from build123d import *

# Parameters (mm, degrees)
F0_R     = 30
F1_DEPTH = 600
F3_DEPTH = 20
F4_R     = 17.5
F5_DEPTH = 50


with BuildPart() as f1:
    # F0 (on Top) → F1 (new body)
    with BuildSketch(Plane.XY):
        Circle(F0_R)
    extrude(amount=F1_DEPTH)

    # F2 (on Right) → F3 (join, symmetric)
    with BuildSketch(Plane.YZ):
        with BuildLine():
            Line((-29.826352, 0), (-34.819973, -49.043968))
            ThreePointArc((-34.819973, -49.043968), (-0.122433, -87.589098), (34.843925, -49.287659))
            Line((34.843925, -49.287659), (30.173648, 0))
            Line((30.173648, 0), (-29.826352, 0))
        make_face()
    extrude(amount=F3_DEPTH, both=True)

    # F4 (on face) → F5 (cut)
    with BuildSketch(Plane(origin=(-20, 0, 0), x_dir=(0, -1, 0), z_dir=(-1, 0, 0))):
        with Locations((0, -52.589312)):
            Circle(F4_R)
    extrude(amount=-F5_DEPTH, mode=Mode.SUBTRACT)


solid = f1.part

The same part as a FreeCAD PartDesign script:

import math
import FreeCAD as App
import Part
import Sketcher

V = App.Vector

doc = App.newDocument("Part")
params = doc.addObject("Spreadsheet::Sheet", "Params")
for row, (alias, value) in enumerate([
    ("sketch1_diameter", "60 mm"),
    ("pad1_length", "600 mm"),
    ("sketch2_radius", "35 mm"),
    ("sketch2_width", "60 mm"),
    ("pad2_length", "40 mm"),
    ("sketch3_diameter", "35 mm"),
    ("pocket1_length", "50 mm"),
], start=1):
    params.set(f"A{row}", alias)
    params.set(f"B{row}", "=" + value)
    params.setAlias(f"B{row}", alias)

body = doc.addObject("PartDesign::Body", "Body")

# Sketch on XY plane
sketch1 = body.newObject("Sketcher::SketchObject", "Sketch")
sketch1.AttachmentSupport = (doc.getObject("XY_Plane"), [""])
sketch1.MapMode = "FlatFace"
sketch1.addGeometry(Part.Circle(V(0, 0, 0), V(0, 0, 1), 30), False)
sketch1.addConstraint([
    Sketcher.Constraint("Coincident", 0, 3, -1, 1),
    Sketcher.Constraint("Diameter", 0, 60.0),
])
sketch1.setExpression("Constraints[1]", "Params.sketch1_diameter")
pad1 = body.newObject("PartDesign::Pad", "Pad")
pad1.Profile = sketch1
pad1.setExpression("Length", "Params.pad1_length")

# Sketch on YZ plane
sketch2 = body.newObject("Sketcher::SketchObject", "Sketch001")
sketch2.AttachmentSupport = (doc.getObject("YZ_Plane"), [""])
sketch2.MapMode = "FlatFace"
sketch2.addGeometry([
    Part.LineSegment(V(-29.826352, 0, 0), V(-34.819973, -49.043968, 0)),
    Part.ArcOfCircle(Part.Circle(V(0, -52.589312, 0), V(0, 0, 1), 35), math.radians(174.186221), math.radians(365.412928)),
    Part.LineSegment(V(34.843925, -49.287659, 0), V(30.173648, 0, 0)),
    Part.LineSegment(V(30.173648, 0, 0), V(-29.826352, 0, 0)),
], False)
sketch2.addConstraint([
    Sketcher.Constraint("Tangent", 0, 2, 1, 1),
    Sketcher.Constraint("Tangent", 1, 2, 2, 1),
    Sketcher.Constraint("Coincident", 2, 2, 3, 1),
    Sketcher.Constraint("Coincident", 3, 2, 0, 1),
    Sketcher.Constraint("Horizontal", 3),
    Sketcher.Constraint("PointOnObject", 1, 3, -2),
    Sketcher.Constraint("PointOnObject", 2, 2, -1),
    Sketcher.Constraint("Radius", 1, 35.0),
    Sketcher.Constraint("DistanceX", 3, 2, 3, 1, 60.0),
    Sketcher.Constraint("Distance", 2, 49.508432),
    Sketcher.Constraint("DistanceX", -1, 1, 2, 2, 30.173648),
])
sketch2.setExpression("Constraints[7]", "Params.sketch2_radius")
sketch2.setExpression("Constraints[8]", "Params.sketch2_width")
pad2 = body.newObject("PartDesign::Pad", "Pad001")
pad2.Profile = sketch2
pad2.setExpression("Length", "Params.pad2_length")
pad2.Midplane = True

# Sketch on YZ plane
sketch3 = body.newObject("Sketcher::SketchObject", "Sketch002")
sketch3.AttachmentSupport = (doc.getObject("YZ_Plane"), [""])
sketch3.MapMode = "FlatFace"
sketch3.AttachmentOffset = App.Placement(V(0, 0, -20), App.Rotation())
sketch3.addGeometry(Part.Circle(V(0, -52.589312, 0), V(0, 0, 1), 17.5), False)
sketch3.addConstraint([
    Sketcher.Constraint("PointOnObject", 0, 3, -2),
    Sketcher.Constraint("Diameter", 0, 35.0),
    Sketcher.Constraint("DistanceY", 0, 3, -1, 1, 52.589312),
])
sketch3.setExpression("Constraints[1]", "Params.sketch3_diameter")
pocket1 = body.newObject("PartDesign::Pocket", "Pocket")
pocket1.Profile = sketch3
pocket1.setExpression("Length", "Params.pocket1_length")
pocket1.Reversed = True

doc.recompute()
